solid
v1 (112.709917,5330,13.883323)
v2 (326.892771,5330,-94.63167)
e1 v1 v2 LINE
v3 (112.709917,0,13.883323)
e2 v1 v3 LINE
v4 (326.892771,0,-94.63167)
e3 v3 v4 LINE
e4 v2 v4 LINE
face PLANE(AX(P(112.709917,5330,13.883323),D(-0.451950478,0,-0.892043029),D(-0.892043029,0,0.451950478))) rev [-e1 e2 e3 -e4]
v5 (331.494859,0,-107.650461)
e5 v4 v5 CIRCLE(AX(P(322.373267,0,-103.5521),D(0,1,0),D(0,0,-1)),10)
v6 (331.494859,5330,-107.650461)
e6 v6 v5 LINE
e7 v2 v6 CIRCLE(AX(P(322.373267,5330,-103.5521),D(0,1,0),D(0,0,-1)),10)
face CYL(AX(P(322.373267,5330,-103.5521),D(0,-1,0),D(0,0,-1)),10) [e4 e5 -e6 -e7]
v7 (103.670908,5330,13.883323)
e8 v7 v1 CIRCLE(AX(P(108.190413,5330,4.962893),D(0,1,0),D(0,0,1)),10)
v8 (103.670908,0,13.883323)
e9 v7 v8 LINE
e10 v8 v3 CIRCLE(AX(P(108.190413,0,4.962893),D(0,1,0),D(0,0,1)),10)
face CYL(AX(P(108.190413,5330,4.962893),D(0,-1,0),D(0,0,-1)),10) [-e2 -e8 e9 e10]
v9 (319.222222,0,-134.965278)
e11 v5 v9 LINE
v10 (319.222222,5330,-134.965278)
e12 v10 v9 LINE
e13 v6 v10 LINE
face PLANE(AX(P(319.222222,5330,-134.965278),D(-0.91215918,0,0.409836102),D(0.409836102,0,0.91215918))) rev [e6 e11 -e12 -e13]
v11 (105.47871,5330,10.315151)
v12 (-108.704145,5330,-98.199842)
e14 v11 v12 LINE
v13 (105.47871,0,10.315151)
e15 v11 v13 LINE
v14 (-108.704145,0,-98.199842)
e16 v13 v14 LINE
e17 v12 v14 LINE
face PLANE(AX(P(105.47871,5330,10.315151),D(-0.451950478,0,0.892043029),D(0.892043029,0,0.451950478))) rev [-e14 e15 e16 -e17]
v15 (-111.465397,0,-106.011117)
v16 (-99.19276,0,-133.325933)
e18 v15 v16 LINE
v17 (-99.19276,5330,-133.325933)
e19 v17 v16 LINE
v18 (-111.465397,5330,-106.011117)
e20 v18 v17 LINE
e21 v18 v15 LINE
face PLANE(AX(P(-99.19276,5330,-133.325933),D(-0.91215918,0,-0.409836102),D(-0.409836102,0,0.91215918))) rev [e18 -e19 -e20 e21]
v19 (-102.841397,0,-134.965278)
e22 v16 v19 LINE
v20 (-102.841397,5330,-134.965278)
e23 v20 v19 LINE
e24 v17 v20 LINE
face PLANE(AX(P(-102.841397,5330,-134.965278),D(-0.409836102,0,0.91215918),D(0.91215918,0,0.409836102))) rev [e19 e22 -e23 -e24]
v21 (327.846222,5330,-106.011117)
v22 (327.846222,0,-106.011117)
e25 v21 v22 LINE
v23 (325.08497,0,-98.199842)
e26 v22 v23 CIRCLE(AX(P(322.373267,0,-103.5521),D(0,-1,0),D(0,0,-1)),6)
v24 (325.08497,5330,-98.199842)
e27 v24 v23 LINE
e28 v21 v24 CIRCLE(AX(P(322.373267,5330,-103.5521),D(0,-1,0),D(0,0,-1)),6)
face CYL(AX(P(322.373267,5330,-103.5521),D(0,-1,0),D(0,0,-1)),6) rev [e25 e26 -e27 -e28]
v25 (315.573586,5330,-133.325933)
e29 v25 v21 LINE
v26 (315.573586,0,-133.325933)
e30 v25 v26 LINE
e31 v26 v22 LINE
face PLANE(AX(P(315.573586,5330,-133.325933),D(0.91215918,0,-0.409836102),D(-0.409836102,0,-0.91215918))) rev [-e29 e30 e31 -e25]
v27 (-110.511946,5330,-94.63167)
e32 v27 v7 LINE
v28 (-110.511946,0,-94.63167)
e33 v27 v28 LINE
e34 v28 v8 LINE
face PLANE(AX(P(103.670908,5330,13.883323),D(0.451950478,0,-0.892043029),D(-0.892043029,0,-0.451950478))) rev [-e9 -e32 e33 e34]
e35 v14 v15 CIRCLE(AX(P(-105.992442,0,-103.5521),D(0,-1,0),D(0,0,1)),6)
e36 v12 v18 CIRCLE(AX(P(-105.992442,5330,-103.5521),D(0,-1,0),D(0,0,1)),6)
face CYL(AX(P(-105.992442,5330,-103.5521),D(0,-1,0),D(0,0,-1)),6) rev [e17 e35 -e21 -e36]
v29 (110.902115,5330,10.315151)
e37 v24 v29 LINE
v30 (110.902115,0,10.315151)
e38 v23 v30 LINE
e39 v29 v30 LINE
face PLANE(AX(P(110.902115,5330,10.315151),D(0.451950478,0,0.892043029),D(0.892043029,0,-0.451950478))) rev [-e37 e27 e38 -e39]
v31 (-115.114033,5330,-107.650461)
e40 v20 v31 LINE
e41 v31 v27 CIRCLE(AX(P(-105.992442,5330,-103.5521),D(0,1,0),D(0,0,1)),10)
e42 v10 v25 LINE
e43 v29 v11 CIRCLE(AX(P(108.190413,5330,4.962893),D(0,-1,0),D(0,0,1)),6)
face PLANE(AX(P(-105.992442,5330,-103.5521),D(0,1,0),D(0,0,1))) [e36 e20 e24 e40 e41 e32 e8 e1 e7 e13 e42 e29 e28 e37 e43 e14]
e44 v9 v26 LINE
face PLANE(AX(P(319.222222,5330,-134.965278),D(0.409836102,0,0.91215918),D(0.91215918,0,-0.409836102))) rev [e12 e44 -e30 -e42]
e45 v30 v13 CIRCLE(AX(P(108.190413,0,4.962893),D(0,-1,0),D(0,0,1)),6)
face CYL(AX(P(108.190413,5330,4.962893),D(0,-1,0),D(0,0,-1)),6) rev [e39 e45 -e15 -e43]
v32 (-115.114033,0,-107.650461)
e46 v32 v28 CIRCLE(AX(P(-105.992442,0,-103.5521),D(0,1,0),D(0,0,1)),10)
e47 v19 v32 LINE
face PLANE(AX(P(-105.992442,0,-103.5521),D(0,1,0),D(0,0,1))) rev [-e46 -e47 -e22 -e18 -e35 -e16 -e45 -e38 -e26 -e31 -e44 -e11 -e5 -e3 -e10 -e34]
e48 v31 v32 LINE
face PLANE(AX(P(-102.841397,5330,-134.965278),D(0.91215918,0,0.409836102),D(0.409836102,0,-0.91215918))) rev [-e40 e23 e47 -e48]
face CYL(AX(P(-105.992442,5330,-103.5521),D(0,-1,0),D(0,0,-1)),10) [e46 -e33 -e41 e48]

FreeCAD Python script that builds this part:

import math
import FreeCAD as App
import Part
import Sketcher

V = App.Vector

doc = App.newDocument("Part")
body = doc.addObject("PartDesign::Body", "Body")

# Sketch on XZ plane
sketch1 = body.newObject("Sketcher::SketchObject", "Sketch")
sketch1.AttachmentSupport = (doc.getObject("XZ_Plane"), [""])
sketch1.MapMode = "FlatFace"
sketch1.addGeometry(Part.LineSegment(V(331.494859, -107.650461, 0), V(319.222222, -134.965278, 0)), False)
sketch1.addGeometry(Part.LineSegment(V(319.222222, -134.965278, 0), V(315.573586, -133.325933, 0)), False)
sketch1.addGeometry(Part.LineSegment(V(315.573586, -133.325933, 0), V(327.846222, -106.011117, 0)), False)
sketch1.addGeometry(Part.ArcOfCircle(Part.Circle(V(322.373267, -103.5521, 0), V(0, 0, 1), 6), math.radians(-24.194539), math.radians(63.131106)), False)
sketch1.addGeometry(Part.LineSegment(V(325.08497, -98.199842, 0), V(110.902115, 10.315151, 0)), False)
sketch1.addGeometry(Part.ArcOfCircle(Part.Circle(V(108.190413, 4.962893, 0), V(0, 0, 1), 6), math.radians(63.131106), math.radians(116.868894)), False)
sketch1.addGeometry(Part.LineSegment(V(105.47871, 10.315151, 0), V(-108.704145, -98.199842, 0)), False)
sketch1.addGeometry(Part.ArcOfCircle(Part.Circle(V(-105.992442, -103.5521, 0), V(0, 0, 1), 6), math.radians(116.868894), math.radians(204.194539)), False)
sketch1.addGeometry(Part.LineSegment(V(-111.465397, -106.011117, 0), V(-99.19276, -133.325933, 0)), False)
sketch1.addGeometry(Part.LineSegment(V(-99.19276, -133.325933, 0), V(-102.841397, -134.965278, 0)), False)
sketch1.addGeometry(Part.LineSegment(V(-102.841397, -134.965278, 0), V(-115.114033, -107.650461, 0)), False)
sketch1.addGeometry(Part.ArcOfCircle(Part.Circle(V(-105.992442, -103.5521, 0), V(0, 0, 1), 10), math.radians(116.868894), math.radians(204.194539)), False)
sketch1.addGeometry(Part.LineSegment(V(-110.511946, -94.63167, 0), V(103.670908, 13.883323, 0)), False)
sketch1.addGeometry(Part.ArcOfCircle(Part.Circle(V(108.190413, 4.962893, 0), V(0, 0, 1), 10), math.radians(63.131106), math.radians(116.868894)), False)
sketch1.addGeometry(Part.LineSegment(V(112.709917, 13.883323, 0), V(326.892771, -94.63167, 0)), False)
sketch1.addGeometry(Part.ArcOfCircle(Part.Circle(V(322.373267, -103.5521, 0), V(0, 0, 1), 10), math.radians(-24.194539), math.radians(63.131106)), False)
sketch1.addConstraint(Sketcher.Constraint("Coincident", 0, 2, 1, 1))
sketch1.addConstraint(Sketcher.Constraint("Coincident", 1, 2, 2, 1))
sketch1.addConstraint(Sketcher.Constraint("Tangent", 2, 2, 3, 1))
sketch1.addConstraint(Sketcher.Constraint("Tangent", 3, 2, 4, 1))
sketch1.addConstraint(Sketcher.Constraint("Tangent", 4, 2, 5, 1))
sketch1.addConstraint(Sketcher.Constraint("Tangent", 5, 2, 6, 1))
sketch1.addConstraint(Sketcher.Constraint("Tangent", 6, 2, 7, 1))
sketch1.addConstraint(Sketcher.Constraint("Tangent", 7, 2, 8, 1))
sketch1.addConstraint(Sketcher.Constraint("Coincident", 8, 2, 9, 1))
sketch1.addConstraint(Sketcher.Constraint("Coincident", 9, 2, 10, 1))
sketch1.addConstraint(Sketcher.Constraint("Tangent", 10, 2, 11, 2))
sketch1.addConstraint(Sketcher.Constraint("Tangent", 11, 1, 12, 1))
sketch1.addConstraint(Sketcher.Constraint("Tangent", 12, 2, 13, 2))
sketch1.addConstraint(Sketcher.Constraint("Tangent", 13, 1, 14, 1))
sketch1.addConstraint(Sketcher.Constraint("Tangent", 14, 2, 15, 2))
sketch1.addConstraint(Sketcher.Constraint("Tangent", 15, 1, 0, 1))
sketch1.addConstraint(Sketcher.Constraint("Coincident", 11, 3, 7, 3))
sketch1.addConstraint(Sketcher.Constraint("Coincident", 13, 3, 5, 3))
sketch1.addConstraint(Sketcher.Constraint("Coincident", 15, 3, 3, 3))
sketch1.addConstraint(Sketcher.Constraint("Equal", 3, 5))
sketch1.addConstraint(Sketcher.Constraint("Equal", 5, 7))
sketch1.addConstraint(Sketcher.Constraint("Equal", 11, 13))
sketch1.addConstraint(Sketcher.Constraint("Equal", 13, 15))
sketch1.addConstraint(Sketcher.Constraint("Perpendicular", 0, 1))
sketch1.addConstraint(Sketcher.Constraint("Perpendicular", 1, 2))
sketch1.addConstraint(Sketcher.Constraint("Perpendicular", 8, 9))
sketch1.addConstraint(Sketcher.Constraint("Perpendicular", 9, 10))
sketch1.addConstraint(Sketcher.Constraint("Horizontal", 3, 3, 7, 3))
sketch1.addConstraint(Sketcher.Constraint("Horizontal", 2, 2, 7, 2))
sketch1.addConstraint(Sketcher.Constraint("Horizontal", 1, 2, 8, 2))
sketch1.addConstraint(Sketcher.Constraint("Equal", 4, 6))
sketch1.addConstraint(Sketcher.Constraint("Radius", 3, 6.0))
sketch1.addConstraint(Sketcher.Constraint("Radius", 11, 10.0))
sketch1.addConstraint(Sketcher.Constraint("DistanceX", 0, 2, 2, 2, 8.624))
sketch1.addConstraint(Sketcher.Constraint("DistanceY", 3, 3, -1, 1, 103.5521))
sketch1.addConstraint(Sketcher.Constraint("Distance", 0, 29.94523))
sketch1.addConstraint(Sketcher.Constraint("DistanceX", 7, 3, -1, 1, 105.992442))
sketch1.addConstraint(Sketcher.Constraint("DistanceX", -1, 1, 2, 2, 327.846222))
sketch1.addConstraint(Sketcher.Constraint("DistanceY", -1, 1, 4, 2, 10.315151))
pad1 = body.newObject("PartDesign::Pad", "Pad")
pad1.Profile = sketch1
pad1.Length = 5330
pad1.Reversed = True

doc.recompute()
